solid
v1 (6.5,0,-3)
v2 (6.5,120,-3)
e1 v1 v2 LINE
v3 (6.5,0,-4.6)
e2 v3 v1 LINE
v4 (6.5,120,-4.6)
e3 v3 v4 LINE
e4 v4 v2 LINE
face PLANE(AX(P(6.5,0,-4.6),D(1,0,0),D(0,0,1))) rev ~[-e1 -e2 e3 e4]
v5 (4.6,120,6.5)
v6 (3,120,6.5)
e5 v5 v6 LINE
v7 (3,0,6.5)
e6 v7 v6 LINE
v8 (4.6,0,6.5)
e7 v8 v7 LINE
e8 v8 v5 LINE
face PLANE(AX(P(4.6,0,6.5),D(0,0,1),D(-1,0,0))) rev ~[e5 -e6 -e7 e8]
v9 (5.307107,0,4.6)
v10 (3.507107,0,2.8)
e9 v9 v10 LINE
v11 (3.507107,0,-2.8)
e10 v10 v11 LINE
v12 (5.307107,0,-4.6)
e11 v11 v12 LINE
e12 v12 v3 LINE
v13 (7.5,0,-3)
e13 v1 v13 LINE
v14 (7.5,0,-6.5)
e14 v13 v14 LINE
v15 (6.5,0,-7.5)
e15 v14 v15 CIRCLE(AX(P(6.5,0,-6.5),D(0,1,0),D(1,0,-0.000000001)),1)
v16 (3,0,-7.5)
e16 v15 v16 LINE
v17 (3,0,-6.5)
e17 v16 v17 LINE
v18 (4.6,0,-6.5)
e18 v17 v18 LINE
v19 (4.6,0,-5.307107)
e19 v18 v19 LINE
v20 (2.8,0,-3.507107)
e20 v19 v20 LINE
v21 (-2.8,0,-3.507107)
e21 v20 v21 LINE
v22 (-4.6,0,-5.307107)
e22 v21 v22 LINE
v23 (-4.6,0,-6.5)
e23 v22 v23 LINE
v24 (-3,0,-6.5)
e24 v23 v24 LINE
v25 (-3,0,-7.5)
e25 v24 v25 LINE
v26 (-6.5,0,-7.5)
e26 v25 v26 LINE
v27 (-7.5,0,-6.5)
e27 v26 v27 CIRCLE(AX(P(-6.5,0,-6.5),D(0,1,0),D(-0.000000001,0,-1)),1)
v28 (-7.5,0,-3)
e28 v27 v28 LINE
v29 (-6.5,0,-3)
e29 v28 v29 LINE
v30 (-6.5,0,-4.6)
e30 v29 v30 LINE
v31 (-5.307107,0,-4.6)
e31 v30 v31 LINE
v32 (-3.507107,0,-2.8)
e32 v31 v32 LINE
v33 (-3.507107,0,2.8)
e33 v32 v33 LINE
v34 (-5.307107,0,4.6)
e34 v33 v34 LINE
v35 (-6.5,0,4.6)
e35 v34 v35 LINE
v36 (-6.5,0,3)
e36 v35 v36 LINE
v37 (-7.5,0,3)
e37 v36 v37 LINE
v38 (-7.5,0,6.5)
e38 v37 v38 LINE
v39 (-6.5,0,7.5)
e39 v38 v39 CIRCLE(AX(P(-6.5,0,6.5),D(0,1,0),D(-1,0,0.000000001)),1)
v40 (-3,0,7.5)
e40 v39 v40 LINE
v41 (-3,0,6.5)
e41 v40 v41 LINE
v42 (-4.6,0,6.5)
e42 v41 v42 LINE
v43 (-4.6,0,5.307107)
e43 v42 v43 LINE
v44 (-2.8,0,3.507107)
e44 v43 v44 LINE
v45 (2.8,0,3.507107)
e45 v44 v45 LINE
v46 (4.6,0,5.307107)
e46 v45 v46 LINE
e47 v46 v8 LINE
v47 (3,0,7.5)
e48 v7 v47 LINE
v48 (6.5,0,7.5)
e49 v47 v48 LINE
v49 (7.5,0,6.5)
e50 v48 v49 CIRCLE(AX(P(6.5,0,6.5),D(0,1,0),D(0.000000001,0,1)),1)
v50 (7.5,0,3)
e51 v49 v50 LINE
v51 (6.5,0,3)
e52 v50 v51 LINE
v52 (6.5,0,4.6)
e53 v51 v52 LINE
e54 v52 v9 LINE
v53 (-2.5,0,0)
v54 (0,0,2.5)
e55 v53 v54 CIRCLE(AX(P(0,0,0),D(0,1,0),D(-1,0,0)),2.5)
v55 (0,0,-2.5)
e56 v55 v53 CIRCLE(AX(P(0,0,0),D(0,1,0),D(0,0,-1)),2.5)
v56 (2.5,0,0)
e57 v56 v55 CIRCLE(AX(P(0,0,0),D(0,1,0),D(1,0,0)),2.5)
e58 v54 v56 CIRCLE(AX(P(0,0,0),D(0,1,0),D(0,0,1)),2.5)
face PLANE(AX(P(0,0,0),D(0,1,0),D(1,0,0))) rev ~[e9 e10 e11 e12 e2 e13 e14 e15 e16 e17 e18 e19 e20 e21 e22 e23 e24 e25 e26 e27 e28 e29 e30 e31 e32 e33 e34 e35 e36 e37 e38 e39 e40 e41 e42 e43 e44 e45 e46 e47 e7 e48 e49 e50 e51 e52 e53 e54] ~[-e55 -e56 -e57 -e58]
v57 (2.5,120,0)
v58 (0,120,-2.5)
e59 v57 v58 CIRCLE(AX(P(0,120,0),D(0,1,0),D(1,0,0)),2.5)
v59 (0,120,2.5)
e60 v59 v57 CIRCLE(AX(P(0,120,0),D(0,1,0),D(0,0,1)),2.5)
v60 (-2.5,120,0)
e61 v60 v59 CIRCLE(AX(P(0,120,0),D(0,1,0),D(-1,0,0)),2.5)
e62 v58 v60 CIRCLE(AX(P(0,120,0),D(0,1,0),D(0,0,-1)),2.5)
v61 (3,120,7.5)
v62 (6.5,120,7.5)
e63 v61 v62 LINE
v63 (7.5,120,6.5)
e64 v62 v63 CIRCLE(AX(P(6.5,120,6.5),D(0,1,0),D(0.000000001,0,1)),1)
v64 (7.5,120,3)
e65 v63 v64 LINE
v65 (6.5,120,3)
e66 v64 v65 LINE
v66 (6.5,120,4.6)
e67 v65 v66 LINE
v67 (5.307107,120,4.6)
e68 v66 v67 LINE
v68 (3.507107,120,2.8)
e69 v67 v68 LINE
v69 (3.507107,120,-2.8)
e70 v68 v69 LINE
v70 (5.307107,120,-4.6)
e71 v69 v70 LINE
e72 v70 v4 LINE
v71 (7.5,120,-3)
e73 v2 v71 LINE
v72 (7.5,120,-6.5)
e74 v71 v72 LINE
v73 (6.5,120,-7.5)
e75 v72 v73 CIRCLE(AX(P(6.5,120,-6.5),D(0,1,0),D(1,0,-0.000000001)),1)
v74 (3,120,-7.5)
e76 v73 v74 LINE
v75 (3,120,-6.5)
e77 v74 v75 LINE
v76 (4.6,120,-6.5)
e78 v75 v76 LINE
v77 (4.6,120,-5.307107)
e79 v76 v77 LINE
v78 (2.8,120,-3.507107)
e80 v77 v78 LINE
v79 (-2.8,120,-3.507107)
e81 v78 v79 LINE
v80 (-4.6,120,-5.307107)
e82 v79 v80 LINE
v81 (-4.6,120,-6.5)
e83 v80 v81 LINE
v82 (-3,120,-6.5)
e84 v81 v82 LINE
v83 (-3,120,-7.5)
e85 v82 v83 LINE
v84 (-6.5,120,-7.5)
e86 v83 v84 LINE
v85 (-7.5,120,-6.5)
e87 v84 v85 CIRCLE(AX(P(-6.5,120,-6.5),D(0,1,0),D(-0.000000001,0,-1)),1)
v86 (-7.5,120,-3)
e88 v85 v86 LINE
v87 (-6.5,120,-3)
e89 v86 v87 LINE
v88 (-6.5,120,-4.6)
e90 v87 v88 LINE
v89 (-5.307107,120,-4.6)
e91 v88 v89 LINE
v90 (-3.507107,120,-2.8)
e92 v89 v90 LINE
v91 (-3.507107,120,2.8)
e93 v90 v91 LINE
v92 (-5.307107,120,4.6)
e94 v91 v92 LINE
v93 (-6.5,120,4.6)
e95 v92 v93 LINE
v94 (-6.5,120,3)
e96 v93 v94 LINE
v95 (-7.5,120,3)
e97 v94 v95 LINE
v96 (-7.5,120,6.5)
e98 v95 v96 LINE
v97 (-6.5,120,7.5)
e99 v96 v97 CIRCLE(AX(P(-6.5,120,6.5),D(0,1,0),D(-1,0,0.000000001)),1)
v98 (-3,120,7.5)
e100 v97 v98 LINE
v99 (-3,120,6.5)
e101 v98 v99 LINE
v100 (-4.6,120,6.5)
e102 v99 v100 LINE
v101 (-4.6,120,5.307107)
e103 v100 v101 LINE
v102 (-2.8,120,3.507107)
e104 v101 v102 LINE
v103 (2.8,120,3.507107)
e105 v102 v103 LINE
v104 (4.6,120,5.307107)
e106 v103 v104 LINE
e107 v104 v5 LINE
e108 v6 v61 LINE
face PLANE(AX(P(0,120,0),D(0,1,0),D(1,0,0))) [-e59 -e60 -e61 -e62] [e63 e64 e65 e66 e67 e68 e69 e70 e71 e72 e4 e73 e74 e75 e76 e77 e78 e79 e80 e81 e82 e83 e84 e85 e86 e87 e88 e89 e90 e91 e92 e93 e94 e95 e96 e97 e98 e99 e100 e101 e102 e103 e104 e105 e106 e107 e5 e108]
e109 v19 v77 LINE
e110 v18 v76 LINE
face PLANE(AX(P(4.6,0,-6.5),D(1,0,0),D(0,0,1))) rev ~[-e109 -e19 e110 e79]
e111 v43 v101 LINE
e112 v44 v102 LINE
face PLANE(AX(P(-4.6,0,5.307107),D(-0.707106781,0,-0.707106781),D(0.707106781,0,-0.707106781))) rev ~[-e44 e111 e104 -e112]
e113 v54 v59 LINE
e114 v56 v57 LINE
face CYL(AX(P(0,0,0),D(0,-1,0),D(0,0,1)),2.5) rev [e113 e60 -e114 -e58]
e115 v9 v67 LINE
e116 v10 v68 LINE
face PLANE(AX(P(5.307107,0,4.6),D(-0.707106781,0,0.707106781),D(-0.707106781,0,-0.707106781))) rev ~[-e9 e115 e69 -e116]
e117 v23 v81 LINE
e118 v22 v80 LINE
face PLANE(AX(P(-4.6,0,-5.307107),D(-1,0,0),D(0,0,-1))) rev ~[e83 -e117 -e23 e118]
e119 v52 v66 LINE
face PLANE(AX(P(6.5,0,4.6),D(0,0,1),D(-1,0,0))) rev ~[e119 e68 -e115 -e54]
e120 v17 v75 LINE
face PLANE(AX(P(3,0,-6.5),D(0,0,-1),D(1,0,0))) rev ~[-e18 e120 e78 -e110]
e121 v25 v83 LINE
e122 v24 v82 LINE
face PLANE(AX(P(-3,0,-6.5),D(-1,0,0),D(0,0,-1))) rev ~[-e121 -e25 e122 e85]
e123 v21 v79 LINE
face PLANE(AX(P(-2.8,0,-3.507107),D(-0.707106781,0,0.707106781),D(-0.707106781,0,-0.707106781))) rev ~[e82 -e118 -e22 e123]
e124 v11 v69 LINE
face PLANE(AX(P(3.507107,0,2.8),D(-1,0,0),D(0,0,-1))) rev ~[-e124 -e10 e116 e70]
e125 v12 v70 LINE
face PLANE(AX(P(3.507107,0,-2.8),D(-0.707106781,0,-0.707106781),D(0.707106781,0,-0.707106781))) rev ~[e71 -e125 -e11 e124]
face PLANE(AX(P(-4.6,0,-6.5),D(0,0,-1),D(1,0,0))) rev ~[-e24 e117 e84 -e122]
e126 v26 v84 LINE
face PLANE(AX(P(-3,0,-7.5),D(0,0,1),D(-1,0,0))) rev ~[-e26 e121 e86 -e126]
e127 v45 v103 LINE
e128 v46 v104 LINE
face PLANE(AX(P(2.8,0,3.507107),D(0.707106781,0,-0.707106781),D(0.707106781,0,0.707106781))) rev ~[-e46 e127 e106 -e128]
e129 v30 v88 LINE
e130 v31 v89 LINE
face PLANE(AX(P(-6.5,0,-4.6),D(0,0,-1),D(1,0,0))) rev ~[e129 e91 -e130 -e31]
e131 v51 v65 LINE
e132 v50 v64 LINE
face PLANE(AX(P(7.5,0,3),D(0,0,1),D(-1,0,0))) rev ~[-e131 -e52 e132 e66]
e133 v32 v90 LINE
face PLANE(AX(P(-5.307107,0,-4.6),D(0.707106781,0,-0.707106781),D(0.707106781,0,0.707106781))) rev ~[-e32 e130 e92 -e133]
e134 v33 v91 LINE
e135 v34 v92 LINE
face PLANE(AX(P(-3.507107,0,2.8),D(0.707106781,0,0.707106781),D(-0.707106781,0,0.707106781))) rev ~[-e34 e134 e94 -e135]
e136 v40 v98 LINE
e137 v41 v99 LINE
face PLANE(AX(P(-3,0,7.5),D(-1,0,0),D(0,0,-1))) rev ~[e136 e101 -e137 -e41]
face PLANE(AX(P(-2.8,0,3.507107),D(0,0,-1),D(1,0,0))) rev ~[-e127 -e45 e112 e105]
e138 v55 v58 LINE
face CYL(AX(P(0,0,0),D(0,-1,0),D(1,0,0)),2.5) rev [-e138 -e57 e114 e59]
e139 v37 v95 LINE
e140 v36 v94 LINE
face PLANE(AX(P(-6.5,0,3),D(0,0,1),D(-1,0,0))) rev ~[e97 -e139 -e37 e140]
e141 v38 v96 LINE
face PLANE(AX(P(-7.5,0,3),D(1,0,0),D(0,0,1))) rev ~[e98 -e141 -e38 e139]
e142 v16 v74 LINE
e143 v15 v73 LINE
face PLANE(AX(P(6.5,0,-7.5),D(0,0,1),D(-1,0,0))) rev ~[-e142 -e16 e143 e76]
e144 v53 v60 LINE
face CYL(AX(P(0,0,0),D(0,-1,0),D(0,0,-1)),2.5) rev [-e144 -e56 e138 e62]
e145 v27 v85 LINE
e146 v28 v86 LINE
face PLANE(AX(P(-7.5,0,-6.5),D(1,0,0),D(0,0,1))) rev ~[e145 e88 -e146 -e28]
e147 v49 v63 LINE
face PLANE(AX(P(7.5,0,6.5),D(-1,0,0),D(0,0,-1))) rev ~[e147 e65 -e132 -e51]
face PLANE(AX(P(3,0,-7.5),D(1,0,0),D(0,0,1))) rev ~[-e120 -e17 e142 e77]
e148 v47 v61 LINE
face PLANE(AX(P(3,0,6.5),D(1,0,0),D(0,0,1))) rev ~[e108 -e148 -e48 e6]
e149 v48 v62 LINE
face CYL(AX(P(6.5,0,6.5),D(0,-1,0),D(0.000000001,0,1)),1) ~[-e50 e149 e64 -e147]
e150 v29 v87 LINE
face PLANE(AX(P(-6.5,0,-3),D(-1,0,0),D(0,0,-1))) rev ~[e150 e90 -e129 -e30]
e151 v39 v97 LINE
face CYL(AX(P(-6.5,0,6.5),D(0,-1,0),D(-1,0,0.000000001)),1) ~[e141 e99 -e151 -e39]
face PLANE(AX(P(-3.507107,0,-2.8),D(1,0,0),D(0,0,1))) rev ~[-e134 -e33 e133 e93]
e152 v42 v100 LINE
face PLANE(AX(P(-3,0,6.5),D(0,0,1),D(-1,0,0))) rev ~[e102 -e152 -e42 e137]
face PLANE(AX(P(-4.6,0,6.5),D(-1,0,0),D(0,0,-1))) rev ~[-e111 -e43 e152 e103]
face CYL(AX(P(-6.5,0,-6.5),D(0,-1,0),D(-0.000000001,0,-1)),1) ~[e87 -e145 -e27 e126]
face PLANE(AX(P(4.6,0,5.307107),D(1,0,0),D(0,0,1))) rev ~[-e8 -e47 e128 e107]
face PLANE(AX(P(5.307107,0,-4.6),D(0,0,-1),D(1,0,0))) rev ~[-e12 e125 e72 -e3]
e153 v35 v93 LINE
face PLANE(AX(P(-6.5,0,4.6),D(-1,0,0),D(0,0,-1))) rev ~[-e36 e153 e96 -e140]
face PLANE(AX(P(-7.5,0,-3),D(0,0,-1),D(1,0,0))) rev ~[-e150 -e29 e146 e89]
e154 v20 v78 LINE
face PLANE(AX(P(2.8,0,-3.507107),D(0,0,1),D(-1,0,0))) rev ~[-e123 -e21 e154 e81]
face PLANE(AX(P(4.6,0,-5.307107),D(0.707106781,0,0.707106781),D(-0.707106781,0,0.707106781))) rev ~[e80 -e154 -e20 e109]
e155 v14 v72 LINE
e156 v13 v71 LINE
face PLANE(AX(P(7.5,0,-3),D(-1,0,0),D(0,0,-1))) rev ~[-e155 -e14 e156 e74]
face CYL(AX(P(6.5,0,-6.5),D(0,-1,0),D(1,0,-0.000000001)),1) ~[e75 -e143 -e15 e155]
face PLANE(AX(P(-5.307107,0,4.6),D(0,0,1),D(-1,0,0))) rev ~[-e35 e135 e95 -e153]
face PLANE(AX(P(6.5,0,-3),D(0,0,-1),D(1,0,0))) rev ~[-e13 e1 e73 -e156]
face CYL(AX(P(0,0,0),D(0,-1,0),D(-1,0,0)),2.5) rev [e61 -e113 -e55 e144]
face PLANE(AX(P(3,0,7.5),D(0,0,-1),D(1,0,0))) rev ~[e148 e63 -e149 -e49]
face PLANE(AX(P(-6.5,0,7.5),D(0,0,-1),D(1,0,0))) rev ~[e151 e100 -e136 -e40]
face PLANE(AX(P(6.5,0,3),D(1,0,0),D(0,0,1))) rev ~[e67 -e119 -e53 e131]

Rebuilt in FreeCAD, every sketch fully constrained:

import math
import FreeCAD as App
import Part
import Sketcher
from FreeCAD import Vector
Q = App.Units.Quantity

doc = App.newDocument("Part")
body = doc.addObject("PartDesign::Body", "Body")

sketch1 = doc.addObject("Sketcher::SketchObject", "Sketch")
body.addObject(sketch1)
sketch1.AttachmentSupport = (doc.XZ_Plane, [""])
sketch1.MapMode = "FlatFace"
sketch1.addGeometry([
    Part.LineSegment(Vector(-7.5, 3, 0), Vector(-7.5, 6.5, 0)),
    Part.ArcOfCircle(Part.Circle(Vector(-6.5, 6.5, 0), Vector(0, 0, 1), 1), math.radians(90), math.radians(180)),
    Part.LineSegment(Vector(-6.5, 7.5, 0), Vector(-3, 7.5, 0)),
    Part.LineSegment(Vector(-3, 7.5, 0), Vector(-3, 6.5, 0)),
    Part.LineSegment(Vector(-3, 6.5, 0), Vector(-4.6, 6.5, 0)),
    Part.LineSegment(Vector(-4.6, 6.5, 0), Vector(-4.6, 5.307107, 0)),
    Part.LineSegment(Vector(-4.6, 5.307107, 0), Vector(-2.8, 3.507107, 0)),
    Part.LineSegment(Vector(-2.8, 3.507107, 0), Vector(2.8, 3.507107, 0)),
    Part.LineSegment(Vector(2.8, 3.507107, 0), Vector(4.6, 5.307107, 0)),
    Part.LineSegment(Vector(4.6, 5.307107, 0), Vector(4.6, 6.5, 0)),
    Part.LineSegment(Vector(4.6, 6.5, 0), Vector(3, 6.5, 0)),
    Part.LineSegment(Vector(3, 6.5, 0), Vector(3, 7.5, 0)),
    Part.LineSegment(Vector(3, 7.5, 0), Vector(6.5, 7.5, 0)),
    Part.ArcOfCircle(Part.Circle(Vector(6.5, 6.5, 0), Vector(0, 0, 1), 1), math.radians(0), math.radians(90)),
    Part.LineSegment(Vector(7.5, 6.5, 0), Vector(7.5, 3, 0)),
    Part.LineSegment(Vector(7.5, 3, 0), Vector(6.5, 3, 0)),
    Part.LineSegment(Vector(6.5, 3, 0), Vector(6.5, 4.6, 0)),
    Part.LineSegment(Vector(6.5, 4.6, 0), Vector(5.307107, 4.6, 0)),
    Part.LineSegment(Vector(5.307107, 4.6, 0), Vector(3.507107, 2.8, 0)),
    Part.LineSegment(Vector(3.507107, 2.8, 0), Vector(3.507107, -2.8, 0)),
    Part.LineSegment(Vector(3.507107, -2.8, 0), Vector(5.307107, -4.6, 0)),
    Part.LineSegment(Vector(5.307107, -4.6, 0), Vector(6.5, -4.6, 0)),
    Part.LineSegment(Vector(6.5, -4.6, 0), Vector(6.5, -3, 0)),
    Part.LineSegment(Vector(6.5, -3, 0), Vector(7.5, -3, 0)),
    Part.LineSegment(Vector(7.5, -3, 0), Vector(7.5, -6.5, 0)),
    Part.ArcOfCircle(Part.Circle(Vector(6.5, -6.5, 0), Vector(0, 0, 1), 1), math.radians(-90), math.radians(0)),
    Part.LineSegment(Vector(6.5, -7.5, 0), Vector(3, -7.5, 0)),
    Part.LineSegment(Vector(3, -7.5, 0), Vector(3, -6.5, 0)),
    Part.LineSegment(Vector(3, -6.5, 0), Vector(4.6, -6.5, 0)),
    Part.LineSegment(Vector(4.6, -6.5, 0), Vector(4.6, -5.307107, 0)),
    Part.LineSegment(Vector(4.6, -5.307107, 0), Vector(2.8, -3.507107, 0)),
    Part.LineSegment(Vector(2.8, -3.507107, 0), Vector(-2.8, -3.507107, 0)),
    Part.LineSegment(Vector(-2.8, -3.507107, 0), Vector(-4.6, -5.307107, 0)),
    Part.LineSegment(Vector(-4.6, -5.307107, 0), Vector(-4.6, -6.5, 0)),
    Part.LineSegment(Vector(-4.6, -6.5, 0), Vector(-3, -6.5, 0)),
    Part.LineSegment(Vector(-3, -6.5, 0), Vector(-3, -7.5, 0)),
    Part.LineSegment(Vector(-3, -7.5, 0), Vector(-6.5, -7.5, 0)),
    Part.ArcOfCircle(Part.Circle(Vector(-6.5, -6.5, 0), Vector(0, 0, 1), 1), math.radians(-180), math.radians(-90)),
    Part.LineSegment(Vector(-7.5, -6.5, 0), Vector(-7.5, -3, 0)),
    Part.LineSegment(Vector(-7.5, -3, 0), Vector(-6.5, -3, 0)),
    Part.LineSegment(Vector(-6.5, -3, 0), Vector(-6.5, -4.6, 0)),
    Part.LineSegment(Vector(-6.5, -4.6, 0), Vector(-5.307107, -4.6, 0)),
    Part.LineSegment(Vector(-5.307107, -4.6, 0), Vector(-3.507107, -2.8, 0)),
    Part.LineSegment(Vector(-3.507107, -2.8, 0), Vector(-3.507107, 2.8, 0)),
    Part.LineSegment(Vector(-3.507107, 2.8, 0), Vector(-5.307107, 4.6, 0)),
    Part.LineSegment(Vector(-5.307107, 4.6, 0), Vector(-6.5, 4.6, 0)),
    Part.LineSegment(Vector(-6.5, 4.6, 0), Vector(-6.5, 3, 0)),
    Part.LineSegment(Vector(-6.5, 3, 0), Vector(-7.5, 3, 0)),
    Part.ArcOfCircle(Part.Circle(Vector(0, 0, 0), Vector(0, 0, 1), 2.5), math.radians(90), math.radians(180)),
    Part.ArcOfCircle(Part.Circle(Vector(0, 0, 0), Vector(0, 0, 1), 2.5), math.radians(180), math.radians(270)),
    Part.ArcOfCircle(Part.Circle(Vector(0, 0, 0), Vector(0, 0, 1), 2.5), math.radians(-90), math.radians(0)),
    Part.ArcOfCircle(Part.Circle(Vector(0, 0, 0), Vector(0, 0, 1), 2.5), math.radians(0), math.radians(90)),
], False)
sketch1.addConstraint([
    Sketcher.Constraint("Tangent", 0, 2, 1, 2),
    Sketcher.Constraint("Tangent", 1, 1, 2, 1),
    Sketcher.Constraint("Coincident", 2, 2, 3, 1),
    Sketcher.Constraint("Coincident", 3, 2, 4, 1),
    Sketcher.Constraint("Coincident", 4, 2, 5, 1),
    Sketcher.Constraint("Coincident", 5, 2, 6, 1),
    Sketcher.Constraint("Coincident", 6, 2, 7, 1),
    Sketcher.Constraint("Coincident", 7, 2, 8, 1),
    Sketcher.Constraint("Coincident", 8, 2, 9, 1),
    Sketcher.Constraint("Coincident", 9, 2, 10, 1),
    Sketcher.Constraint("Coincident", 10, 2, 11, 1),
    Sketcher.Constraint("Coincident", 11, 2, 12, 1),
    Sketcher.Constraint("Tangent", 12, 2, 13, 2),
    Sketcher.Constraint("Tangent", 13, 1, 14, 1),
    Sketcher.Constraint("Coincident", 14, 2, 15, 1),
    Sketcher.Constraint("Coincident", 15, 2, 16, 1),
    Sketcher.Constraint("Coincident", 16, 2, 17, 1),
    Sketcher.Constraint("Coincident", 17, 2, 18, 1),
    Sketcher.Constraint("Coincident", 18, 2, 19, 1),
    Sketcher.Constraint("Coincident", 19, 2, 20, 1),
    Sketcher.Constraint("Coincident", 20, 2, 21, 1),
    Sketcher.Constraint("Coincident", 21, 2, 22, 1),
    Sketcher.Constraint("Coincident", 22, 2, 23, 1),
    Sketcher.Constraint("Coincident", 23, 2, 24, 1),
    Sketcher.Constraint("Tangent", 24, 2, 25, 2),
    Sketcher.Constraint("Tangent", 25, 1, 26, 1),
    Sketcher.Constraint("Coincident", 26, 2, 27, 1),
    Sketcher.Constraint("Coincident", 27, 2, 28, 1),
    Sketcher.Constraint("Coincident", 28, 2, 29, 1),
    Sketcher.Constraint("Coincident", 29, 2, 30, 1),
    Sketcher.Constraint("Coincident", 30, 2, 31, 1),
    Sketcher.Constraint("Coincident", 31, 2, 32, 1),
    Sketcher.Constraint("Coincident", 32, 2, 33, 1),
    Sketcher.Constraint("Coincident", 33, 2, 34, 1),
    Sketcher.Constraint("Coincident", 34, 2, 35, 1),
    Sketcher.Constraint("Coincident", 35, 2, 36, 1),
    Sketcher.Constraint("Tangent", 36, 2, 37, 2),
    Sketcher.Constraint("Tangent", 37, 1, 38, 1),
    Sketcher.Constraint("Coincident", 38, 2, 39, 1),
    Sketcher.Constraint("Coincident", 39, 2, 40, 1),
    Sketcher.Constraint("Coincident", 40, 2, 41, 1),
    Sketcher.Constraint("Coincident", 41, 2, 42, 1),
    Sketcher.Constraint("Coincident", 42, 2, 43, 1),
    Sketcher.Constraint("Coincident", 43, 2, 44, 1),
    Sketcher.Constraint("Coincident", 44, 2, 45, 1),
    Sketcher.Constraint("Coincident", 45, 2, 46, 1),
    Sketcher.Constraint("Coincident", 46, 2, 47, 1),
    Sketcher.Constraint("Coincident", 47, 2, 0, 1),
    Sketcher.Constraint("Tangent", 48, 2, 49, 1),
    Sketcher.Constraint("Tangent", 49, 2, 50, 1),
    Sketcher.Constraint("Tangent", 50, 2, 51, 1),
    Sketcher.Constraint("Tangent", 51, 2, 48, 1),
    Sketcher.Constraint("Vertical", 0),
    Sketcher.Constraint("Horizontal", 2),
    Sketcher.Constraint("Vertical", 3),
    Sketcher.Constraint("Horizontal", 4),
    Sketcher.Constraint("Vertical", 5),
    Sketcher.Constraint("Horizontal", 7),
    Sketcher.Constraint("Vertical", 9),
    Sketcher.Constraint("Horizontal", 10),
    Sketcher.Constraint("Vertical", 11),
    Sketcher.Constraint("Horizontal", 12),
    Sketcher.Constraint("Vertical", 14),
    Sketcher.Constraint("Horizontal", 15),
    Sketcher.Constraint("Vertical", 16),
    Sketcher.Constraint("Horizontal", 17),
    Sketcher.Constraint("Vertical", 19),
    Sketcher.Constraint("Horizontal", 21),
    Sketcher.Constraint("Vertical", 22),
    Sketcher.Constraint("Horizontal", 23),
    Sketcher.Constraint("Vertical", 24),
    Sketcher.Constraint("Horizontal", 26),
    Sketcher.Constraint("Vertical", 27),
    Sketcher.Constraint("Horizontal", 28),
    Sketcher.Constraint("Vertical", 29),
    Sketcher.Constraint("Horizontal", 31),
    Sketcher.Constraint("Vertical", 33),
    Sketcher.Constraint("Horizontal", 34),
    Sketcher.Constraint("Vertical", 35),
    Sketcher.Constraint("Horizontal", 36),
    Sketcher.Constraint("Vertical", 38),
    Sketcher.Constraint("Horizontal", 39),
    Sketcher.Constraint("Vertical", 40),
    Sketcher.Constraint("Horizontal", 41),
    Sketcher.Constraint("Vertical", 43),
    Sketcher.Constraint("Horizontal", 45),
    Sketcher.Constraint("Vertical", 46),
    Sketcher.Constraint("Horizontal", 47),
    Sketcher.Constraint("Coincident", 48, 3, -1, 1),
    Sketcher.Constraint("Equal", 1, 13),
    Sketcher.Constraint("Equal", 13, 25),
    Sketcher.Constraint("Equal", 25, 37),
    Sketcher.Constraint("Equal", 48, 49),
    Sketcher.Constraint("Symmetric", 1, 3, 25, 3, -1, 1),
    Sketcher.Constraint("Symmetric", 13, 3, 37, 3, -1, 1),
    Sketcher.Constraint("Symmetric", 3, 2, 27, 2, -1, 1),
    Sketcher.Constraint("Symmetric", 5, 2, 29, 2, -1, 1),
    Sketcher.Constraint("Symmetric", 6, 2, 30, 2, -1, 1),
    Sketcher.Constraint("Symmetric", 8, 2, 32, 2, -1, 1),
    Sketcher.Constraint("Symmetric", 10, 2, 34, 2, -1, 1),
    Sketcher.Constraint("Symmetric", 15, 2, 39, 2, -1, 1),
    Sketcher.Constraint("Symmetric", 17, 2, 41, 2, -1, 1),
    Sketcher.Constraint("Symmetric", 18, 2, 42, 2, -1, 1),
    Sketcher.Constraint("Symmetric", 20, 2, 44, 2, -1, 1),
    Sketcher.Constraint("Symmetric", 22, 2, 46, 2, -1, 1),
    Sketcher.Constraint("Symmetric", 1, 3, 13, 3, -2),
    Sketcher.Constraint("Symmetric", 5, 2, 8, 2, -2),
    Sketcher.Constraint("Symmetric", 3, 2, 10, 2, -2),
    Sketcher.Constraint("Symmetric", 22, 2, 39, 2, -2),
    Sketcher.Constraint("Symmetric", 20, 2, 41, 2, -2),
    Sketcher.Constraint("PointOnObject", 48, 2, -1),
    Sketcher.Constraint("PointOnObject", 49, 2, -2),
    Sketcher.Constraint("PointOnObject", 50, 2, -1),
    Sketcher.Constraint("PointOnObject", 51, 2, -2),
    Sketcher.Constraint("Perpendicular", 6, 8),
    Sketcher.Constraint("Parallel", 8, 18),
    Sketcher.Constraint("Perpendicular", 18, 20),
    Sketcher.Constraint("Perpendicular", 30, 32),
    Sketcher.Constraint("Perpendicular", 42, 44),
    Sketcher.Constraint("Horizontal", 0, 2, 3, 2),
    Sketcher.Constraint("Horizontal", 19, 2, 42, 2),
    Sketcher.Constraint("Vertical", 12, 2, 15, 2),
    Sketcher.Constraint("Equal", 36, 0),
    Sketcher.Constraint("Equal", 45, 5),
    Sketcher.Constraint("Equal", 34, 16),
    Sketcher.Constraint("Equal", 31, 19),
    Sketcher.Constraint("Equal", 8, 18),
    Sketcher.Constraint("Radius", 1, Q("1 mm")),
    Sketcher.Constraint("Radius", 48, Q("2.5 mm")),
    Sketcher.Constraint("DistanceX", 2, 1, 2, 2, Q("3.5 mm")),
    Sketcher.Constraint("DistanceX", 4, 2, 4, 1, Q("1.6 mm")),
    Sketcher.Constraint("DistanceX", 7, 1, 7, 2, Q("5.6 mm")),
    Sketcher.Constraint("DistanceX", 2, 2, -1, 1, Q("3 mm")),
    Sketcher.Constraint("DistanceX", 17, 2, 17, 1, Q("1.192893 mm")),
])
pad1 = doc.addObject("PartDesign::Pad", "Pad")
body.addObject(pad1)
pad1.Profile = sketch1
pad1.Length = 120
pad1.Reversed = True

doc.recompute()
